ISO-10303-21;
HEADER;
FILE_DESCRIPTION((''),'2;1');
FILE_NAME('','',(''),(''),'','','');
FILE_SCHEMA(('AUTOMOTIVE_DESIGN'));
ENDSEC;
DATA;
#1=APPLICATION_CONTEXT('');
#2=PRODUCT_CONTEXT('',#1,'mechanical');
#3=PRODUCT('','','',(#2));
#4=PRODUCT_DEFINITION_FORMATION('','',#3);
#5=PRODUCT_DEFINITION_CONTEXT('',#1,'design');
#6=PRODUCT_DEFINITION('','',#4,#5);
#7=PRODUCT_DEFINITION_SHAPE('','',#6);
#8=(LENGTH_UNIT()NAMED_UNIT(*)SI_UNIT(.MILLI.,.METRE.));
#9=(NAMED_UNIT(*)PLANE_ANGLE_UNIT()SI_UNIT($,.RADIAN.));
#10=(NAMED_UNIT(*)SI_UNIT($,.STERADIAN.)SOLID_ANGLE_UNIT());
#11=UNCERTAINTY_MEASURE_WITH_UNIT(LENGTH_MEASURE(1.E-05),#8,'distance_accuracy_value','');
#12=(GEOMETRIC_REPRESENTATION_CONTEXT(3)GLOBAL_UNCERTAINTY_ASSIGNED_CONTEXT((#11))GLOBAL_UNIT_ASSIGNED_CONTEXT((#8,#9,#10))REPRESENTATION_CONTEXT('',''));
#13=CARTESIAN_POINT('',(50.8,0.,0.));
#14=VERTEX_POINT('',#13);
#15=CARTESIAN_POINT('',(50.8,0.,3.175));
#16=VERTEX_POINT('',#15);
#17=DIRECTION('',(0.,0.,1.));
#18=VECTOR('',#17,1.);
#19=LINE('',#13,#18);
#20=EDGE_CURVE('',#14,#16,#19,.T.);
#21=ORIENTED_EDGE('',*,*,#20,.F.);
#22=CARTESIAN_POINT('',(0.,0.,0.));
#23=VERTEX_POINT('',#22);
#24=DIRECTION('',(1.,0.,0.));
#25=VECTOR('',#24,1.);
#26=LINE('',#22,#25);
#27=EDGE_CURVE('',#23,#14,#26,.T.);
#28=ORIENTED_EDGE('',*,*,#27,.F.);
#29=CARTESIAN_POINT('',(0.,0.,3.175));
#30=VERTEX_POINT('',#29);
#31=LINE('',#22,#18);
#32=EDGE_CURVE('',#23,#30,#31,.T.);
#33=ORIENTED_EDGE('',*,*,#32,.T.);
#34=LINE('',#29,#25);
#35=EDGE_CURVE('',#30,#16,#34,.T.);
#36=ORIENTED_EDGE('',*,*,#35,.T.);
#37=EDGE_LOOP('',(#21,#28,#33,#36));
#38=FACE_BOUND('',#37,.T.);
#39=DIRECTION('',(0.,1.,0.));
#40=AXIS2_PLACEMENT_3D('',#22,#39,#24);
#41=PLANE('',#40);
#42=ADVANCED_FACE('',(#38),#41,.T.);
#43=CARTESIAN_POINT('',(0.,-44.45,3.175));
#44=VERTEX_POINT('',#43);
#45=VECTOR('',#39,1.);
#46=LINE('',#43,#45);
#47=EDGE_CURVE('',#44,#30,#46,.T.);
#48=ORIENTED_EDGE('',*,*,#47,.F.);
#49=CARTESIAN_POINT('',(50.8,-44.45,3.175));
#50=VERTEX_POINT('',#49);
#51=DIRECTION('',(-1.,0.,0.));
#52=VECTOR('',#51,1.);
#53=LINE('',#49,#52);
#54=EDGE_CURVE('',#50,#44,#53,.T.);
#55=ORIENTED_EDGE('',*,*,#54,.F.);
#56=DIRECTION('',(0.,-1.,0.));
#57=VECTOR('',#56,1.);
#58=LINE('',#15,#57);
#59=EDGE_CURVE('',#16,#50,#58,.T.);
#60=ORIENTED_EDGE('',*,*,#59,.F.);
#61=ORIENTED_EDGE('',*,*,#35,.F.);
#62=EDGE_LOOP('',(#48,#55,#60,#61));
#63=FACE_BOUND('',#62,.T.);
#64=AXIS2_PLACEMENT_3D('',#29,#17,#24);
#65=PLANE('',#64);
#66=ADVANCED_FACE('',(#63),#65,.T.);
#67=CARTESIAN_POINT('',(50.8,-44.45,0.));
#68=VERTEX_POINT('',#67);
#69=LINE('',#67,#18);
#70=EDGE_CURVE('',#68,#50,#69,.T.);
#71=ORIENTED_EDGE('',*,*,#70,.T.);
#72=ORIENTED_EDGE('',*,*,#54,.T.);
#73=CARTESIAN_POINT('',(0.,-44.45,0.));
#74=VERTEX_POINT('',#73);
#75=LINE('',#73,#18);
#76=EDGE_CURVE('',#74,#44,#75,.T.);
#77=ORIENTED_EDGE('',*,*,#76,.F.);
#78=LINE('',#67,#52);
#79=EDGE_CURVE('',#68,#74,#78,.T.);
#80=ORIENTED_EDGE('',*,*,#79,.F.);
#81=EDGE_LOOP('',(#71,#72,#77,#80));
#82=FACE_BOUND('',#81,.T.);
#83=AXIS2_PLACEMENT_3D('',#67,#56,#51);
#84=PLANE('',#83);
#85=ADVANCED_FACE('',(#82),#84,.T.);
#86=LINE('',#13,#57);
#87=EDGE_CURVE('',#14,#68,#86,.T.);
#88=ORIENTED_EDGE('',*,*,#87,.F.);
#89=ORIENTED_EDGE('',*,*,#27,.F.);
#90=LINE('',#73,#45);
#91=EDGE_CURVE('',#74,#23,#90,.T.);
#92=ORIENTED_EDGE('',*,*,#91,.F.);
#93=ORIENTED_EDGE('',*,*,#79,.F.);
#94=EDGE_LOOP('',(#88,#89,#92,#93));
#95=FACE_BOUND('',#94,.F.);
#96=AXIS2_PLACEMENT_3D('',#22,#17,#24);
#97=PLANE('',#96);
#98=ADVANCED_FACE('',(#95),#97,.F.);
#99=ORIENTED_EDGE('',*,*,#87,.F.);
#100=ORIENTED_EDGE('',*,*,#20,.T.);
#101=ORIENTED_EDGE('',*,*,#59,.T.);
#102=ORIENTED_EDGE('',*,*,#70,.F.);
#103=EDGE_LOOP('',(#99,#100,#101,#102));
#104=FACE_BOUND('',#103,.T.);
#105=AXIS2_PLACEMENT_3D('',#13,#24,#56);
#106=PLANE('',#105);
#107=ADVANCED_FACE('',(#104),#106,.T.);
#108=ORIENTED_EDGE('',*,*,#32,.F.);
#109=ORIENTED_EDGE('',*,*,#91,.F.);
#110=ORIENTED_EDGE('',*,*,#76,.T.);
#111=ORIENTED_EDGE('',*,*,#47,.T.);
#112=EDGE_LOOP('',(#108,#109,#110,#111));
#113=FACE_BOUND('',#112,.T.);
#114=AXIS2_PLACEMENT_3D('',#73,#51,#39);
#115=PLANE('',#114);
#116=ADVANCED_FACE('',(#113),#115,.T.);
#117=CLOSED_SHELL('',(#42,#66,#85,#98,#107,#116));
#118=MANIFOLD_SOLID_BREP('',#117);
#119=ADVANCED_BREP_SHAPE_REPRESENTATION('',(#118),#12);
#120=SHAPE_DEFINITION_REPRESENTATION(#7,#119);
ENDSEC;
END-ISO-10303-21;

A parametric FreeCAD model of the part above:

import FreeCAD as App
import Part
import Sketcher
from FreeCAD import Vector
Q = App.Units.Quantity

doc = App.newDocument("Part")
body = doc.addObject("PartDesign::Body", "Body")

sketch1 = body.newObject("Sketcher::SketchObject", "Sketch")
sketch1.AttachmentSupport = (doc.getObject("XY_Plane"), [""])
sketch1.MapMode = "FlatFace"
sketch1.addGeometry([
    Part.LineSegment(Vector(51, 0, 0), Vector(0, 0, 0)),
    Part.LineSegment(Vector(0, 0, 0), Vector(0, -44, 0)),
    Part.LineSegment(Vector(0, -44, 0), Vector(51, -44, 0)),
    Part.LineSegment(Vector(51, -44, 0), Vector(51, 0, 0)),
], False)
sketch1.addConstraint([
    Sketcher.Constraint("Coincident", 0, 2, 1, 1),
    Sketcher.Constraint("Coincident", 1, 2, 2, 1),
    Sketcher.Constraint("Coincident", 2, 2, 3, 1),
    Sketcher.Constraint("Coincident", 3, 2, 0, 1),
    Sketcher.Constraint("Horizontal", 0),
    Sketcher.Constraint("Vertical", 1),
    Sketcher.Constraint("Horizontal", 2),
    Sketcher.Constraint("Vertical", 3),
    Sketcher.Constraint("Coincident", 0, 2, -1, 1),
    Sketcher.Constraint("DistanceX", 0, 2, 0, 1, Q("2 in")),
    Sketcher.Constraint("DistanceY", 1, 2, 1, 1, Q("1.75 in")),
])
pad1 = body.newObject("PartDesign::Pad", "Pad")
pad1.Profile = sketch1
pad1.Length = Q("0.125 in")

doc.recompute()
